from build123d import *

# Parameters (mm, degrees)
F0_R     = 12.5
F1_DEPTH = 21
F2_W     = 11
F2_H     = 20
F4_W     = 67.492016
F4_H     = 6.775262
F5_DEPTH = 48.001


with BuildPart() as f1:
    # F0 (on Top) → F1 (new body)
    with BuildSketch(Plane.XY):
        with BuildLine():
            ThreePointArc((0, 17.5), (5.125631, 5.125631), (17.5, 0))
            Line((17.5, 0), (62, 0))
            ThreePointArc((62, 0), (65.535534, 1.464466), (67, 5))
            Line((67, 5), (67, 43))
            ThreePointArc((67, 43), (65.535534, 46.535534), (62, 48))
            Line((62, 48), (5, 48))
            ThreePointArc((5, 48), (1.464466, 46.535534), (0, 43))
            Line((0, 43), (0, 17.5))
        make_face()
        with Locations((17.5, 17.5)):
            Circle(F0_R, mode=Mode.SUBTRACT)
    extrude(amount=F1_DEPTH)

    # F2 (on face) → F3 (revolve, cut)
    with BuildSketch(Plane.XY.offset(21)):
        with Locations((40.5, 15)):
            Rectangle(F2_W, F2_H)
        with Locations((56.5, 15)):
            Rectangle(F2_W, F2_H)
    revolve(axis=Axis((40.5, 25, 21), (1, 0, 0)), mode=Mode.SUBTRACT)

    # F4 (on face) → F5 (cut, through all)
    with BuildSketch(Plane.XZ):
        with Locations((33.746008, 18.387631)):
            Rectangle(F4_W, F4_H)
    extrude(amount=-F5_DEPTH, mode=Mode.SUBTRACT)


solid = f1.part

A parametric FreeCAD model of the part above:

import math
import FreeCAD as App
import Part
import Sketcher

V = App.Vector


def add_polygon(sketch, points):
    """Adds a closed chain of lines whose ends are joined by coincident constraints."""
    first, n = sketch.GeometryCount, len(points)
    for a, b in zip(points, points[1:] + points[:1]):
        sketch.addGeometry(Part.LineSegment(App.Vector(*a, 0), App.Vector(*b, 0)), False)
    for i in range(n):
        sketch.addConstraint(Sketcher.Constraint("Coincident", first + i, 2, first + (i + 1) % n, 1))

doc = App.newDocument("Part")
body = doc.addObject("PartDesign::Body", "Body")

# Sketch on XY plane
sketch1 = body.newObject("Sketcher::SketchObject", "Sketch")
sketch1.AttachmentSupport = (doc.getObject("XY_Plane"), [""])
sketch1.MapMode = "FlatFace"
sketch1.addGeometry([
    Part.ArcOfCircle(Part.Circle(V(17.5, 17.5, 0), V(0, 0, 1), 17.5), math.radians(180), math.radians(270)),  # 0
    Part.LineSegment(V(17.5, 0, 0), V(62, 0, 0)),  # 1
    Part.ArcOfCircle(Part.Circle(V(62, 5, 0), V(0, 0, 1), 5), math.radians(-90), math.radians(0)),  # 2
    Part.LineSegment(V(67, 5, 0), V(67, 43, 0)),  # 3
    Part.ArcOfCircle(Part.Circle(V(62, 43, 0), V(0, 0, 1), 5), math.radians(0), math.radians(90)),  # 4
    Part.LineSegment(V(62, 48, 0), V(5, 48, 0)),  # 5
    Part.ArcOfCircle(Part.Circle(V(5, 43, 0), V(0, 0, 1), 5), math.radians(90), math.radians(180)),  # 6
    Part.LineSegment(V(0, 43, 0), V(0, 17.5, 0)),  # 7
    Part.Circle(V(17.5, 17.5, 0), V(0, 0, 1), 12.5),  # 8
], False)
sketch1.addConstraint([
    Sketcher.Constraint("Tangent", 0, 2, 1, 1),
    Sketcher.Constraint("Tangent", 1, 2, 2, 1),
    Sketcher.Constraint("Tangent", 2, 2, 3, 1),
    Sketcher.Constraint("Tangent", 3, 2, 4, 1),
    Sketcher.Constraint("Tangent", 4, 2, 5, 1),
    Sketcher.Constraint("Tangent", 5, 2, 6, 1),
    Sketcher.Constraint("Tangent", 6, 2, 7, 1),
    Sketcher.Constraint("Tangent", 7, 2, 0, 1),
    Sketcher.Constraint("Horizontal", 1),
    Sketcher.Constraint("Vertical", 3),
    Sketcher.Constraint("Horizontal", 5),
    Sketcher.Constraint("Vertical", 7),
    Sketcher.Constraint("Coincident", 8, 3, 0, 3),
    Sketcher.Constraint("Equal", 2, 4),
    Sketcher.Constraint("Equal", 4, 6),
    Sketcher.Constraint("PointOnObject", 0, 2, -1),
    Sketcher.Constraint("PointOnObject", 6, 2, -2),
    Sketcher.Constraint("Diameter", 8, 25.0),
    Sketcher.Constraint("Radius", 2, 5.0),
    Sketcher.Constraint("Radius", 0, 17.499999),
    Sketcher.Constraint("DistanceX", 5, 2, 5, 1, 57.0),
    Sketcher.Constraint("DistanceY", 3, 1, 3, 2, 38.0),
])
pad1 = body.newObject("PartDesign::Pad", "Pad")
pad1.Profile = sketch1
pad1.Length = 21

# Sketch on XY plane
sketch2 = body.newObject("Sketcher::SketchObject", "Sketch001")
sketch2.AttachmentSupport = (doc.getObject("XY_Plane"), [""])
sketch2.MapMode = "FlatFace"
sketch2.AttachmentOffset = App.Placement(V(0, 0, 21), App.Rotation())
add_polygon(sketch2, [(35, 25), (35, 5), (46, 5), (46, 25)])  # lines 0-3
add_polygon(sketch2, [(51, 25), (51, 5), (62, 5), (62, 25)])  # lines 4-7
sketch2.addGeometry(Part.LineSegment(V(35, 25, 0), V(62, 25, 0)), True)  # axis
sketch2.addConstraint([
    Sketcher.Constraint("Vertical", 0),
    Sketcher.Constraint("Horizontal", 1),
    Sketcher.Constraint("Vertical", 2),
    Sketcher.Constraint("Horizontal", 3),
    Sketcher.Constraint("Vertical", 4),
    Sketcher.Constraint("Horizontal", 5),
    Sketcher.Constraint("Vertical", 6),
    Sketcher.Constraint("Horizontal", 7),
    Sketcher.Constraint("Horizontal", 8),
    Sketcher.Constraint("Coincident", 8, 1, 3, 2),
    Sketcher.Constraint("Coincident", 8, 2, 6, 2),
    Sketcher.Constraint("Horizontal", 1, 2, 4, 2),
    Sketcher.Constraint("Equal", 3, 5),
    Sketcher.Constraint("DistanceX", 1, 1, 1, 2, 11.0),
    Sketcher.Constraint("DistanceX", 8, 1, 8, 2, 27.0),
    Sketcher.Constraint("DistanceY", 0, 2, 0, 1, 20.0),
    Sketcher.Constraint("DistanceX", -1, 1, 0, 2, 35.0),
    Sketcher.Constraint("DistanceY", -1, 1, 0, 2, 5.0),
])
groove = body.newObject("PartDesign::Groove", "Groove")
groove.Profile = sketch2
groove.ReferenceAxis = (sketch2, ["Axis0"])
groove.Angle = 360

# Sketch on XZ plane
sketch3 = body.newObject("Sketcher::SketchObject", "Sketch002")
sketch3.AttachmentSupport = (doc.getObject("XZ_Plane"), [""])
sketch3.MapMode = "FlatFace"
add_polygon(sketch3, [(0, 22), (0, 15), (67, 15), (67, 22)])  # lines 0-3
sketch3.addConstraint([
    Sketcher.Constraint("Vertical", 0),
    Sketcher.Constraint("Horizontal", 1),
    Sketcher.Constraint("Vertical", 2),
    Sketcher.Constraint("Horizontal", 3),
    Sketcher.Constraint("PointOnObject", 0, 2, -2),
    Sketcher.Constraint("DistanceY", -1, 1, 0, 2, 15.0),
    Sketcher.Constraint("DistanceX", 1, 1, 1, 2, 67.492016),
    Sketcher.Constraint("DistanceY", 0, 2, 0, 1, 6.775262),
])
pocket1 = body.newObject("PartDesign::Pocket", "Pocket")
pocket1.Profile = sketch3
pocket1.Type = "ThroughAll"

doc.recompute()
